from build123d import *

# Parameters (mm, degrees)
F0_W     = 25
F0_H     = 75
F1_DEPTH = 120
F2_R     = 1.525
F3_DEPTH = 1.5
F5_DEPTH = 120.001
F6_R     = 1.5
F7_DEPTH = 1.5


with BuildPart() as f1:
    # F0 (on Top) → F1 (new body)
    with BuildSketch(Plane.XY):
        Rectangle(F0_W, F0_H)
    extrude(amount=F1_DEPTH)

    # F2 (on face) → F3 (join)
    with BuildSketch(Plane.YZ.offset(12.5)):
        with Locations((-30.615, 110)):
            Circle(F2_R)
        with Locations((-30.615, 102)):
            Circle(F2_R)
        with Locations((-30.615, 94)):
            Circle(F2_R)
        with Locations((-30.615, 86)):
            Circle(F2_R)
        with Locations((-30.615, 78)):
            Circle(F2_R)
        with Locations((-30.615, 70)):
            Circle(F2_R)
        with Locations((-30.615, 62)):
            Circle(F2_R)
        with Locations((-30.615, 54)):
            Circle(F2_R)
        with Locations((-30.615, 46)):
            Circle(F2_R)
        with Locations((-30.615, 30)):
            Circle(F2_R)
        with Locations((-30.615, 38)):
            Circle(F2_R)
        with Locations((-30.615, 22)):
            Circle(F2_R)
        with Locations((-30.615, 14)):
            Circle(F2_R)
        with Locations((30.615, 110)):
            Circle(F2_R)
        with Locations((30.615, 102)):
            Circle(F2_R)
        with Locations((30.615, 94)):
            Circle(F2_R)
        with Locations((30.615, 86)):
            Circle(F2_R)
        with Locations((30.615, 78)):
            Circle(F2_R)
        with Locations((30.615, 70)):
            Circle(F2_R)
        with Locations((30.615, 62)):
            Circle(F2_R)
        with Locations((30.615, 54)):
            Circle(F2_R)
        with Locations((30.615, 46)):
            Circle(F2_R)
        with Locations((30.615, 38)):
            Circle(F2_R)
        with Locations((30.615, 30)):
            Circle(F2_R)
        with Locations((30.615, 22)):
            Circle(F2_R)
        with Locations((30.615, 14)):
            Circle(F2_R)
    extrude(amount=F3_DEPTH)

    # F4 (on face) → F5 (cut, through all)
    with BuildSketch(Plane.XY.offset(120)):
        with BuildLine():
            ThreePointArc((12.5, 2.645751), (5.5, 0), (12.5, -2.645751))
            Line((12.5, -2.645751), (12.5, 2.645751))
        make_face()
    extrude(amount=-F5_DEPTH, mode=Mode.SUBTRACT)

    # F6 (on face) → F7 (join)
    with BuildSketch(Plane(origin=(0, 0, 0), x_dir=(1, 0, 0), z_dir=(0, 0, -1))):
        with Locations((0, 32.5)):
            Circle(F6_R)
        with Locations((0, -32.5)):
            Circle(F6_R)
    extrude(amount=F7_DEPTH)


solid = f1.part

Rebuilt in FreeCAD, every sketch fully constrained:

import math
import FreeCAD as App
import Part
import Sketcher

V = App.Vector


def add_polygon(sketch, points):
    """Adds a closed chain of lines whose ends are joined by coincident constraints."""
    first, n = sketch.GeometryCount, len(points)
    for a, b in zip(points, points[1:] + points[:1]):
        sketch.addGeometry(Part.LineSegment(App.Vector(*a, 0), App.Vector(*b, 0)), False)
    for i in range(n):
        sketch.addConstraint(Sketcher.Constraint("Coincident", first + i, 2, first + (i + 1) % n, 1))

doc = App.newDocument("Part")
body = doc.addObject("PartDesign::Body", "Body")

# Sketch on XY plane
sketch1 = body.newObject("Sketcher::SketchObject", "Sketch")
sketch1.AttachmentSupport = (doc.getObject("XY_Plane"), [""])
sketch1.MapMode = "FlatFace"
add_polygon(sketch1, [(-12, 38), (-12, -38), (12, -38), (12, 38)])  # lines 0-3
sketch1.addConstraint([
    Sketcher.Constraint("Vertical", 0),
    Sketcher.Constraint("Horizontal", 1),
    Sketcher.Constraint("Vertical", 2),
    Sketcher.Constraint("Horizontal", 3),
    Sketcher.Constraint("Symmetric", 0, 2, 2, 2, -1, 1),
    Sketcher.Constraint("DistanceX", 1, 1, 1, 2, 25.0),
    Sketcher.Constraint("DistanceY", 0, 2, 0, 1, 75.0),
])
pad1 = body.newObject("PartDesign::Pad", "Pad")
pad1.Profile = sketch1
pad1.Length = 120

# Sketch on YZ plane
sketch2 = body.newObject("Sketcher::SketchObject", "Sketch001")
sketch2.AttachmentSupport = (doc.getObject("YZ_Plane"), [""])
sketch2.MapMode = "FlatFace"
sketch2.AttachmentOffset = App.Placement(V(0, 0, 12.5), App.Rotation())
sketch2.addGeometry([
    Part.Circle(V(-30.6, 110, 0), V(0, 0, 1), 1.5),  # 0
    Part.Circle(V(-30.6, 102, 0), V(0, 0, 1), 1.5),  # 1
    Part.Circle(V(-30.6, 94, 0), V(0, 0, 1), 1.5),  # 2
    Part.Circle(V(-30.6, 86, 0), V(0, 0, 1), 1.5),  # 3
    Part.Circle(V(-30.6, 78, 0), V(0, 0, 1), 1.5),  # 4
    Part.Circle(V(-30.6, 70, 0), V(0, 0, 1), 1.5),  # 5
    Part.Circle(V(-30.6, 62, 0), V(0, 0, 1), 1.5),  # 6
    Part.Circle(V(-30.6, 54, 0), V(0, 0, 1), 1.5),  # 7
    Part.Circle(V(-30.6, 46, 0), V(0, 0, 1), 1.5),  # 8
    Part.Circle(V(-30.6, 30, 0), V(0, 0, 1), 1.5),  # 9
    Part.Circle(V(-30.6, 38, 0), V(0, 0, 1), 1.5),  # 10
    Part.Circle(V(-30.6, 22, 0), V(0, 0, 1), 1.5),  # 11
    Part.Circle(V(-30.6, 14, 0), V(0, 0, 1), 1.5),  # 12
    Part.Circle(V(30.6, 110, 0), V(0, 0, 1), 1.5),  # 13
    Part.Circle(V(30.6, 102, 0), V(0, 0, 1), 1.5),  # 14
    Part.Circle(V(30.6, 94, 0), V(0, 0, 1), 1.5),  # 15
    Part.Circle(V(30.6, 86, 0), V(0, 0, 1), 1.5),  # 16
    Part.Circle(V(30.6, 78, 0), V(0, 0, 1), 1.5),  # 17
    Part.Circle(V(30.6, 70, 0), V(0, 0, 1), 1.5),  # 18
    Part.Circle(V(30.6, 62, 0), V(0, 0, 1), 1.5),  # 19
    Part.Circle(V(30.6, 54, 0), V(0, 0, 1), 1.5),  # 20
    Part.Circle(V(30.6, 46, 0), V(0, 0, 1), 1.5),  # 21
    Part.Circle(V(30.6, 38, 0), V(0, 0, 1), 1.5),  # 22
    Part.Circle(V(30.6, 30, 0), V(0, 0, 1), 1.5),  # 23
    Part.Circle(V(30.6, 22, 0), V(0, 0, 1), 1.5),  # 24
    Part.Circle(V(30.6, 14, 0), V(0, 0, 1), 1.5),  # 25
], False)
sketch2.addConstraint([
    Sketcher.Constraint("Equal", 0, 1),
    Sketcher.Constraint("Equal", 1, 2),
    Sketcher.Constraint("Equal", 2, 3),
    Sketcher.Constraint("Equal", 3, 4),
    Sketcher.Constraint("Equal", 4, 5),
    Sketcher.Constraint("Equal", 5, 6),
    Sketcher.Constraint("Equal", 6, 7),
    Sketcher.Constraint("Equal", 7, 8),
    Sketcher.Constraint("Equal", 8, 9),
    Sketcher.Constraint("Equal", 9, 10),
    Sketcher.Constraint("Equal", 10, 11),
    Sketcher.Constraint("Equal", 11, 12),
    Sketcher.Constraint("Equal", 12, 13),
    Sketcher.Constraint("Equal", 13, 14),
    Sketcher.Constraint("Equal", 14, 15),
    Sketcher.Constraint("Equal", 15, 16),
    Sketcher.Constraint("Equal", 16, 17),
    Sketcher.Constraint("Equal", 17, 18),
    Sketcher.Constraint("Equal", 18, 19),
    Sketcher.Constraint("Equal", 19, 20),
    Sketcher.Constraint("Equal", 20, 21),
    Sketcher.Constraint("Equal", 21, 22),
    Sketcher.Constraint("Equal", 22, 23),
    Sketcher.Constraint("Equal", 23, 24),
    Sketcher.Constraint("Equal", 24, 25),
    Sketcher.Constraint("Symmetric", 0, 3, 13, 3, -2),
    Sketcher.Constraint("Symmetric", 1, 3, 14, 3, -2),
    Sketcher.Constraint("Symmetric", 2, 3, 15, 3, -2),
    Sketcher.Constraint("Symmetric", 3, 3, 16, 3, -2),
    Sketcher.Constraint("Symmetric", 4, 3, 17, 3, -2),
    Sketcher.Constraint("Symmetric", 5, 3, 18, 3, -2),
    Sketcher.Constraint("Symmetric", 6, 3, 19, 3, -2),
    Sketcher.Constraint("Symmetric", 7, 3, 20, 3, -2),
    Sketcher.Constraint("Symmetric", 8, 3, 21, 3, -2),
    Sketcher.Constraint("Symmetric", 10, 3, 22, 3, -2),
    Sketcher.Constraint("Symmetric", 9, 3, 23, 3, -2),
    Sketcher.Constraint("Symmetric", 11, 3, 24, 3, -2),
    Sketcher.Constraint("Symmetric", 12, 3, 25, 3, -2),
    Sketcher.Constraint("Vertical", 0, 3, 1, 3),
    Sketcher.Constraint("Vertical", 1, 3, 2, 3),
    Sketcher.Constraint("Vertical", 2, 3, 3, 3),
    Sketcher.Constraint("Vertical", 3, 3, 4, 3),
    Sketcher.Constraint("Vertical", 4, 3, 5, 3),
    Sketcher.Constraint("Vertical", 5, 3, 6, 3),
    Sketcher.Constraint("Vertical", 6, 3, 7, 3),
    Sketcher.Constraint("Vertical", 7, 3, 8, 3),
    Sketcher.Constraint("Vertical", 8, 3, 9, 3),
    Sketcher.Constraint("Vertical", 9, 3, 10, 3),
    Sketcher.Constraint("Vertical", 10, 3, 11, 3),
    Sketcher.Constraint("Vertical", 11, 3, 12, 3),
    Sketcher.Constraint("Diameter", 0, 3.05),
    Sketcher.Constraint("DistanceY", -1, 1, 0, 3, 110.0),
    Sketcher.Constraint("DistanceY", -1, 1, 1, 3, 102.0),
    Sketcher.Constraint("DistanceY", -1, 1, 2, 3, 94.0),
    Sketcher.Constraint("DistanceY", -1, 1, 3, 3, 86.0),
    Sketcher.Constraint("DistanceY", -1, 1, 4, 3, 78.0),
    Sketcher.Constraint("DistanceY", -1, 1, 5, 3, 70.0),
    Sketcher.Constraint("DistanceY", -1, 1, 6, 3, 62.0),
    Sketcher.Constraint("DistanceY", -1, 1, 7, 3, 54.0),
    Sketcher.Constraint("DistanceY", -1, 1, 8, 3, 46.0),
    Sketcher.Constraint("DistanceY", -1, 1, 9, 3, 30.0),
    Sketcher.Constraint("DistanceY", -1, 1, 10, 3, 38.0),
    Sketcher.Constraint("DistanceY", -1, 1, 11, 3, 22.0),
    Sketcher.Constraint("DistanceY", -1, 1, 12, 3, 14.0),
    Sketcher.Constraint("DistanceX", 0, 3, 13, 3, 61.23),
])
pad2 = body.newObject("PartDesign::Pad", "Pad001")
pad2.Profile = sketch2
pad2.Length = 1.5

# Sketch on XY plane
sketch3 = body.newObject("Sketcher::SketchObject", "Sketch002")
sketch3.AttachmentSupport = (doc.getObject("XY_Plane"), [""])
sketch3.MapMode = "FlatFace"
sketch3.AttachmentOffset = App.Placement(V(0, 0, 120), App.Rotation())
sketch3.addGeometry([
    Part.ArcOfCircle(Part.Circle(V(9.5, 0, 0), V(0, 0, 1), 4), math.radians(41), math.radians(319)),
    Part.LineSegment(V(12.5, -2.6, 0), V(12.5, 2.6, 0)),
], False)
sketch3.addConstraint([
    Sketcher.Constraint("Coincident", 0, 1, 1, 2),
    Sketcher.Constraint("Coincident", 1, 1, 0, 2),
    Sketcher.Constraint("Vertical", 1),
    Sketcher.Constraint("PointOnObject", 0, 3, -1),
    Sketcher.Constraint("Radius", 0, 4.0),
    Sketcher.Constraint("DistanceX", 0, 3, 0, 1, 3.0),
    Sketcher.Constraint("DistanceX", -1, 1, 0, 3, 9.5),
])
pocket1 = body.newObject("PartDesign::Pocket", "Pocket")
pocket1.Profile = sketch3
pocket1.Type = "ThroughAll"

# Sketch on XY plane
sketch4 = body.newObject("Sketcher::SketchObject", "Sketch003")
sketch4.AttachmentSupport = (doc.getObject("XY_Plane"), [""])
sketch4.MapMode = "FlatFace"
sketch4.addGeometry([
    Part.Circle(V(0, -32.5, 0), V(0, 0, 1), 1.5),
    Part.Circle(V(0, 32.5, 0), V(0, 0, 1), 1.5),
], False)
sketch4.addConstraint([
    Sketcher.Constraint("Equal", 0, 1),
    Sketcher.Constraint("Symmetric", 0, 3, 1, 3, -1, 1),
    Sketcher.Constraint("PointOnObject", 0, 3, -2),
    Sketcher.Constraint("Diameter", 0, 3.0),
    Sketcher.Constraint("DistanceY", 0, 3, 1, 3, 65.0),
])
pad3 = body.newObject("PartDesign::Pad", "Pad002")
pad3.Profile = sketch4
pad3.Length = 1.5
pad3.Reversed = True

doc.recompute()
